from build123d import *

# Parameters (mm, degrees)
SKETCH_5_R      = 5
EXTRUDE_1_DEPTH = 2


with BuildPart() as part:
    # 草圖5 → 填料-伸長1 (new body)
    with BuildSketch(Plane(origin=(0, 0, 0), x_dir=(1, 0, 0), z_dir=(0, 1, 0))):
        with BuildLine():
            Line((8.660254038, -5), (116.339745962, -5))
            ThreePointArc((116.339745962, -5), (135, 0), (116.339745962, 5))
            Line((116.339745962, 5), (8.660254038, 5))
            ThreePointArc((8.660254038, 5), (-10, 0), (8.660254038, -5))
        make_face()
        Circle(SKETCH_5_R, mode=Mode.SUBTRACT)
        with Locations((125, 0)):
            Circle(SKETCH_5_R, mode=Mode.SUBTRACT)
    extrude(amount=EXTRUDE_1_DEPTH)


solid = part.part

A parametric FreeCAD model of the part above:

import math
import FreeCAD as App
import Part
import Sketcher
Q = App.Units.Quantity

doc = App.newDocument("Part")
params = doc.addObject("Spreadsheet::Sheet", "Params")
for row, (alias, value) in enumerate([
    ("sketch1_diameter", "10 mm"),
    ("sketch1_radius", "10 mm"),
    ("pad1_length", "2 mm"),
], start=1):
    params.set(f"A{row}", alias)
    params.set(f"B{row}", "=" + value)
    params.setAlias(f"B{row}", alias)

body = doc.addObject("PartDesign::Body", "Body")

# Sketch on XZ plane
sketch1 = body.newObject("Sketcher::SketchObject", "Sketch")
sketch1.AttachmentSupport = (doc.getObject("XZ_Plane"), [""])
sketch1.MapMode = "FlatFace"
sketch1.addGeometry(Part.LineSegment(App.Vector(8.660254, 5, 0), App.Vector(116.339746, 5, 0)), False)
sketch1.addGeometry(Part.ArcOfCircle(Part.Circle(App.Vector(125, 0, 0), App.Vector(0, 0, 1), 10), math.radians(-150), math.radians(150)), False)
sketch1.addGeometry(Part.LineSegment(App.Vector(116.339746, -5, 0), App.Vector(8.660254, -5, 0)), False)
sketch1.addGeometry(Part.ArcOfCircle(Part.Circle(App.Vector(0, 0, 0), App.Vector(0, 0, 1), 10), math.radians(30), math.radians(330)), False)
sketch1.addGeometry(Part.Circle(App.Vector(0, 0, 0), App.Vector(0, 0, 1), 5), False)
sketch1.addGeometry(Part.Circle(App.Vector(125, 0, 0), App.Vector(0, 0, 1), 5), False)
sketch1.addConstraint(Sketcher.Constraint("Coincident", 0, 2, 1, 2))
sketch1.addConstraint(Sketcher.Constraint("Coincident", 1, 1, 2, 1))
sketch1.addConstraint(Sketcher.Constraint("Coincident", 2, 2, 3, 2))
sketch1.addConstraint(Sketcher.Constraint("Coincident", 3, 1, 0, 1))
sketch1.addConstraint(Sketcher.Constraint("Horizontal", 0))
sketch1.addConstraint(Sketcher.Constraint("Horizontal", 2))
sketch1.addConstraint(Sketcher.Constraint("Coincident", 3, 3, -1, 1))
sketch1.addConstraint(Sketcher.Constraint("Coincident", 4, 3, -1, 1))
sketch1.addConstraint(Sketcher.Constraint("Coincident", 5, 3, 1, 3))
sketch1.addConstraint(Sketcher.Constraint("Equal", 1, 3))
sketch1.addConstraint(Sketcher.Constraint("Equal", 4, 5))
sketch1.addConstraint(Sketcher.Constraint("Symmetric", 0, 2, 1, 1, -1))
sketch1.addConstraint(Sketcher.Constraint("Diameter", 4, Q("10 mm")))
sketch1.addConstraint(Sketcher.Constraint("Radius", 1, Q("10 mm")))
sketch1.addConstraint(Sketcher.Constraint("DistanceX", -1, 1, 1, 3, Q("125 mm")))
sketch1.addConstraint(Sketcher.Constraint("DistanceY", -1, 1, 0, 2, Q("5 mm")))
sketch1.setExpression("Constraints[12]", "Params.sketch1_diameter")
sketch1.setExpression("Constraints[13]", "Params.sketch1_radius")
pad1 = body.newObject("PartDesign::Pad", "Pad")
pad1.Profile = sketch1
pad1.setExpression("Length", "Params.pad1_length")
pad1.Reversed = True

doc.recompute()
